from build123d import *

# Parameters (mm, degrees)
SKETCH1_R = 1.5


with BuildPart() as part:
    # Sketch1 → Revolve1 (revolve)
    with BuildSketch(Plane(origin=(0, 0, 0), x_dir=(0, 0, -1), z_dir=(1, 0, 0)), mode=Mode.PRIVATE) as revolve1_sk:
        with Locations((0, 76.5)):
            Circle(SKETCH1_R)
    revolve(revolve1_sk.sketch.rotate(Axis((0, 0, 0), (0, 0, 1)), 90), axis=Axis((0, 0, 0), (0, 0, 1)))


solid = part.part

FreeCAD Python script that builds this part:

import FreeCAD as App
import Part
import Sketcher

V = App.Vector

doc = App.newDocument("Part")
params = doc.addObject("Spreadsheet::Sheet", "Params")
for row, (alias, value) in enumerate([
    ("sketch1_diameter", "3 mm"),
    ("revolution_angle", "360 deg"),
], start=1):
    params.set(f"A{row}", alias)
    params.set(f"B{row}", "=" + value)
    params.setAlias(f"B{row}", alias)

body = doc.addObject("PartDesign::Body", "Body")

# Sketch on YZ plane
sketch1 = body.newObject("Sketcher::SketchObject", "Sketch")
sketch1.AttachmentSupport = (doc.getObject("YZ_Plane"), [""])
sketch1.MapMode = "FlatFace"
sketch1.addGeometry(Part.Circle(V(76.5, 0, 0), V(0, 0, 1), 1.5), False)
sketch1.addConstraint([
    Sketcher.Constraint("PointOnObject", 0, 3, -1),
    Sketcher.Constraint("Diameter", 0, 3.0),
    Sketcher.Constraint("DistanceX", -1, 1, 0, 3, 76.5),
])
sketch1.setExpression("Constraints[1]", "Params.sketch1_diameter")
revolution = body.newObject("PartDesign::Revolution", "Revolution")
revolution.Profile = sketch1
revolution.ReferenceAxis = (sketch1, ["V_Axis"])
revolution.setExpression("Angle", "Params.revolution_angle")

doc.recompute()
